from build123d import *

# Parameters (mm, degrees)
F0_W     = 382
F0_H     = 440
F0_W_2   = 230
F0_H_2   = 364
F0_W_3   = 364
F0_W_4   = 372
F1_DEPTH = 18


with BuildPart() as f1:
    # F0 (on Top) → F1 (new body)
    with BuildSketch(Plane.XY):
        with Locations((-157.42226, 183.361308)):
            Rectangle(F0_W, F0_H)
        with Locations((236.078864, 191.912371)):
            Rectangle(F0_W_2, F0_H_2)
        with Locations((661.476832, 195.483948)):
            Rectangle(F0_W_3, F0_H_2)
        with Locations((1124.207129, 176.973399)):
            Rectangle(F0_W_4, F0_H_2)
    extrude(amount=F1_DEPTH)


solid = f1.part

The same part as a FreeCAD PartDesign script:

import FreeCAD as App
import Part
import Sketcher

V = App.Vector


def add_polygon(sketch, points):
    """Adds a closed chain of lines whose ends are joined by coincident constraints."""
    first, n = sketch.GeometryCount, len(points)
    for a, b in zip(points, points[1:] + points[:1]):
        sketch.addGeometry(Part.LineSegment(App.Vector(*a, 0), App.Vector(*b, 0)), False)
    for i in range(n):
        sketch.addConstraint(Sketcher.Constraint("Coincident", first + i, 2, first + (i + 1) % n, 1))

doc = App.newDocument("Part")
body = doc.addObject("PartDesign::Body", "Body")
body.AllowCompound = True

# Sketch on XY plane
sketch1 = body.newObject("Sketcher::SketchObject", "Sketch")
sketch1.AttachmentSupport = (doc.getObject("XY_Plane"), [""])
sketch1.MapMode = "FlatFace"
add_polygon(sketch1, [(-348.42226, 403.361308), (-348.42226, -36.638692), (33.57774, -36.638692), (33.57774, 403.361308)])  # lines 0-3
add_polygon(sketch1, [(121.078864, 373.912371), (121.078864, 9.912371), (351.078864, 9.912371), (351.078864, 373.912371)])  # lines 4-7
add_polygon(sketch1, [(479.476832, 377.483948), (479.476832, 13.483948), (843.476832, 13.483948), (843.476832, 377.483948)])  # lines 8-11
add_polygon(sketch1, [(938.207129, 358.973399), (938.207129, -5.026601), (1310.207129, -5.026601), (1310.207129, 358.973399)])  # lines 12-15
sketch1.addConstraint([
    Sketcher.Constraint("Vertical", 0),
    Sketcher.Constraint("Horizontal", 1),
    Sketcher.Constraint("Vertical", 2),
    Sketcher.Constraint("Horizontal", 3),
    Sketcher.Constraint("Vertical", 4),
    Sketcher.Constraint("Horizontal", 5),
    Sketcher.Constraint("Vertical", 6),
    Sketcher.Constraint("Horizontal", 7),
    Sketcher.Constraint("Vertical", 8),
    Sketcher.Constraint("Horizontal", 9),
    Sketcher.Constraint("Vertical", 10),
    Sketcher.Constraint("Horizontal", 11),
    Sketcher.Constraint("Vertical", 12),
    Sketcher.Constraint("Horizontal", 13),
    Sketcher.Constraint("Vertical", 14),
    Sketcher.Constraint("Horizontal", 15),
    Sketcher.Constraint("Equal", 11, 4),
    Sketcher.Constraint("Equal", 6, 8),
    Sketcher.Constraint("Equal", 10, 12),
    Sketcher.Constraint("DistanceX", 1, 1, 1, 2, 382.0),
    Sketcher.Constraint("DistanceX", 5, 1, 5, 2, 230.0),
    Sketcher.Constraint("DistanceX", 9, 1, 9, 2, 364.0),
    Sketcher.Constraint("DistanceX", 13, 1, 13, 2, 372.0),
    Sketcher.Constraint("DistanceY", 0, 2, 0, 1, 440.0),
    Sketcher.Constraint("DistanceY", 12, 2, -1, 1, 5.026601),
    Sketcher.Constraint("DistanceX", 0, 2, -1, 1, 348.42226),
    Sketcher.Constraint("DistanceY", -1, 1, 2, 2, 403.361308),
    Sketcher.Constraint("DistanceY", -1, 1, 4, 2, 9.912371),
    Sketcher.Constraint("DistanceX", -1, 1, 8, 2, 479.476832),
    Sketcher.Constraint("DistanceY", -1, 1, 10, 2, 377.483948),
    Sketcher.Constraint("DistanceX", -1, 1, 12, 2, 938.207129),
    Sketcher.Constraint("DistanceX", 5, 2, 8, 2, 128.397968),
])
pad1 = body.newObject("PartDesign::Pad", "Pad")
pad1.Profile = sketch1
pad1.Length = 18

doc.recompute()
